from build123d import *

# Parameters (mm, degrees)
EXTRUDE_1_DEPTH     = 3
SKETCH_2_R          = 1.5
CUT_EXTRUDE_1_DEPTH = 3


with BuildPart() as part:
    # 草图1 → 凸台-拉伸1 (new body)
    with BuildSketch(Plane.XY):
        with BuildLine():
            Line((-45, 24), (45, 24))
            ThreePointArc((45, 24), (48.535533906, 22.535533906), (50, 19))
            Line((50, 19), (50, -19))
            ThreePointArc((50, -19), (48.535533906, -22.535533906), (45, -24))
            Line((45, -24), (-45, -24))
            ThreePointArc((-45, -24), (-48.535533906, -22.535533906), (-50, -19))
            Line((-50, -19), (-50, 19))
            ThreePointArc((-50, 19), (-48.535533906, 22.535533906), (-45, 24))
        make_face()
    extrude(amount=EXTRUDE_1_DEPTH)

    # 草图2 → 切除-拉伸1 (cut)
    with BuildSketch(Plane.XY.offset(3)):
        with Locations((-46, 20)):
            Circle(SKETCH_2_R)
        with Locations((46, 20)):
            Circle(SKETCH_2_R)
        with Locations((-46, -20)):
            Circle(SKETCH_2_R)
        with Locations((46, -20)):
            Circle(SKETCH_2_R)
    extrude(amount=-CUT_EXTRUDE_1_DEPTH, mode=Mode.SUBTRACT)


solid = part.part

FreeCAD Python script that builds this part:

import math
import FreeCAD as App
import Part
import Sketcher
Q = App.Units.Quantity

doc = App.newDocument("Part")
body = doc.addObject("PartDesign::Body", "Body")

# Sketch on XY plane
sketch1 = body.newObject("Sketcher::SketchObject", "Sketch")
sketch1.AttachmentSupport = (doc.getObject("XY_Plane"), [""])
sketch1.MapMode = "FlatFace"
sketch1.addGeometry(Part.LineSegment(App.Vector(45, 24, 0), App.Vector(-45, 24, 0)), False)
sketch1.addGeometry(Part.ArcOfCircle(Part.Circle(App.Vector(-45, 19, 0), App.Vector(0, 0, 1), 5), math.radians(90), math.radians(180)), False)
sketch1.addGeometry(Part.LineSegment(App.Vector(-50, 19, 0), App.Vector(-50, -19, 0)), False)
sketch1.addGeometry(Part.ArcOfCircle(Part.Circle(App.Vector(-45, -19, 0), App.Vector(0, 0, 1), 5), math.radians(180), math.radians(270)), False)
sketch1.addGeometry(Part.LineSegment(App.Vector(-45, -24, 0), App.Vector(45, -24, 0)), False)
sketch1.addGeometry(Part.ArcOfCircle(Part.Circle(App.Vector(45, -19, 0), App.Vector(0, 0, 1), 5), math.radians(-90), math.radians(0)), False)
sketch1.addGeometry(Part.LineSegment(App.Vector(50, -19, 0), App.Vector(50, 19, 0)), False)
sketch1.addGeometry(Part.ArcOfCircle(Part.Circle(App.Vector(45, 19, 0), App.Vector(0, 0, 1), 5), math.radians(0), math.radians(90)), False)
sketch1.addConstraint(Sketcher.Constraint("Tangent", 0, 2, 1, 1))
sketch1.addConstraint(Sketcher.Constraint("Tangent", 1, 2, 2, 1))
sketch1.addConstraint(Sketcher.Constraint("Tangent", 2, 2, 3, 1))
sketch1.addConstraint(Sketcher.Constraint("Tangent", 3, 2, 4, 1))
sketch1.addConstraint(Sketcher.Constraint("Tangent", 4, 2, 5, 1))
sketch1.addConstraint(Sketcher.Constraint("Tangent", 5, 2, 6, 1))
sketch1.addConstraint(Sketcher.Constraint("Tangent", 6, 2, 7, 1))
sketch1.addConstraint(Sketcher.Constraint("Tangent", 7, 2, 0, 1))
sketch1.addConstraint(Sketcher.Constraint("Horizontal", 0))
sketch1.addConstraint(Sketcher.Constraint("Vertical", 2))
sketch1.addConstraint(Sketcher.Constraint("Horizontal", 4))
sketch1.addConstraint(Sketcher.Constraint("Vertical", 6))
sketch1.addConstraint(Sketcher.Constraint("Equal", 1, 3))
sketch1.addConstraint(Sketcher.Constraint("Equal", 3, 5))
sketch1.addConstraint(Sketcher.Constraint("Equal", 5, 7))
sketch1.addConstraint(Sketcher.Constraint("Symmetric", 1, 3, 5, 3, -1, 1))
sketch1.addConstraint(Sketcher.Constraint("Radius", 1, Q("5 mm")))
sketch1.addConstraint(Sketcher.Constraint("DistanceX", 0, 2, 0, 1, Q("90 mm")))
sketch1.addConstraint(Sketcher.Constraint("DistanceY", 2, 2, 2, 1, Q("38 mm")))
pad1 = body.newObject("PartDesign::Pad", "Pad")
pad1.Profile = sketch1
pad1.Length = 3

# Sketch on XY plane
sketch2 = body.newObject("Sketcher::SketchObject", "Sketch001")
sketch2.AttachmentSupport = (doc.getObject("XY_Plane"), [""])
sketch2.MapMode = "FlatFace"
sketch2.AttachmentOffset = App.Placement(App.Vector(0, 0, 3), App.Rotation())
sketch2.addGeometry(Part.Circle(App.Vector(-46, 20, 0), App.Vector(0, 0, 1), 1.5), False)
sketch2.addGeometry(Part.Circle(App.Vector(46, 20, 0), App.Vector(0, 0, 1), 1.5), False)
sketch2.addGeometry(Part.Circle(App.Vector(-46, -20, 0), App.Vector(0, 0, 1), 1.5), False)
sketch2.addGeometry(Part.Circle(App.Vector(46, -20, 0), App.Vector(0, 0, 1), 1.5), False)
sketch2.addConstraint(Sketcher.Constraint("Equal", 0, 1))
sketch2.addConstraint(Sketcher.Constraint("Equal", 1, 2))
sketch2.addConstraint(Sketcher.Constraint("Equal", 2, 3))
sketch2.addConstraint(Sketcher.Constraint("Symmetric", 1, 3, 2, 3, -1, 1))
sketch2.addConstraint(Sketcher.Constraint("Symmetric", 0, 3, 3, 3, -1, 1))
sketch2.addConstraint(Sketcher.Constraint("Symmetric", 0, 3, 1, 3, -2))
sketch2.addConstraint(Sketcher.Constraint("Diameter", 0, Q("3 mm")))
sketch2.addConstraint(Sketcher.Constraint("DistanceX", 0, 3, -1, 1, Q("46 mm")))
sketch2.addConstraint(Sketcher.Constraint("DistanceY", -1, 1, 0, 3, Q("20 mm")))
pocket1 = body.newObject("PartDesign::Pocket", "Pocket")
pocket1.Profile = sketch2
pocket1.Length = 3

doc.recompute()
